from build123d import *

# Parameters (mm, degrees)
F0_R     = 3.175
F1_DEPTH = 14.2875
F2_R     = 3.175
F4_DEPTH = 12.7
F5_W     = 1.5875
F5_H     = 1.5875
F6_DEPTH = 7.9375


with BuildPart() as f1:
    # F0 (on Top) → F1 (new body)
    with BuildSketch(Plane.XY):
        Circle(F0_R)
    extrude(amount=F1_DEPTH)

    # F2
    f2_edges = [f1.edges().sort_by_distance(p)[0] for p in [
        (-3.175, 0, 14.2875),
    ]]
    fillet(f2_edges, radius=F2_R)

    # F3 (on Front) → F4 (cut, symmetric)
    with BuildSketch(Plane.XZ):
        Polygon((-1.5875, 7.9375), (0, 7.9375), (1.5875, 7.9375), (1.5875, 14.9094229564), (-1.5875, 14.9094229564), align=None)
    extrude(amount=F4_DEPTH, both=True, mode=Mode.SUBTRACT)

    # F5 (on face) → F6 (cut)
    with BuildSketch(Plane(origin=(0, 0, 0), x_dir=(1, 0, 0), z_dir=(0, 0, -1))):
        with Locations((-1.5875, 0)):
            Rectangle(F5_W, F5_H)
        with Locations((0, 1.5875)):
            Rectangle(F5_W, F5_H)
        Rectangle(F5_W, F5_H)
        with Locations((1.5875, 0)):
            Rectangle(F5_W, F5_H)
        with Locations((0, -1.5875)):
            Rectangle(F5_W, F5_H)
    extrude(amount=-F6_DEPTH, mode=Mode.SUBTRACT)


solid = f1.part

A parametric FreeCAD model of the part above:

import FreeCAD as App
import Part
import Sketcher

V = App.Vector
Q = App.Units.Quantity


def edges_at(feature, points):
    """Names of the edges that pass closest to the given points."""
    edges = feature.Shape.Edges
    near = lambda p: min(range(len(edges)), key=lambda i: edges[i].distToShape(Part.Vertex(*p))[0])
    return sorted({f"Edge{near(p) + 1}" for p in points})


def add_polygon(sketch, points):
    """Adds a closed chain of lines whose ends are joined by coincident constraints."""
    first, n = sketch.GeometryCount, len(points)
    for a, b in zip(points, points[1:] + points[:1]):
        sketch.addGeometry(Part.LineSegment(App.Vector(*a, 0), App.Vector(*b, 0)), False)
    for i in range(n):
        sketch.addConstraint(Sketcher.Constraint("Coincident", first + i, 2, first + (i + 1) % n, 1))

doc = App.newDocument("Part")
body = doc.addObject("PartDesign::Body", "Body")

# Sketch on XY plane
sketch1 = doc.addObject("Sketcher::SketchObject", "Sketch")
body.addObject(sketch1)
sketch1.AttachmentSupport = (doc.XY_Plane, [""])
sketch1.MapMode = "FlatFace"
sketch1.addGeometry(Part.Circle(V(0, 0, 0), V(0, 0, 1), 3.2), False)
sketch1.addConstraint(Sketcher.Constraint("Coincident", 0, 3, -1, 1))
sketch1.addConstraint(Sketcher.Constraint("Diameter", 0, Q("0.25 in")))
pad1 = doc.addObject("PartDesign::Pad", "Pad")
body.addObject(pad1)
pad1.Profile = sketch1
pad1.Length = Q("0.5625 in")
doc.recompute()

fillet = doc.addObject("PartDesign::Fillet", "Fillet")
body.addObject(fillet)
fillet.Base = (pad1, edges_at(pad1, [(-3.175, 0, 14.287)]))
fillet.Radius = Q("0.125 in")

# Sketch on XZ plane
sketch2 = doc.addObject("Sketcher::SketchObject", "Sketch001")
body.addObject(sketch2)
sketch2.AttachmentSupport = (doc.XZ_Plane, [""])
sketch2.MapMode = "FlatFace"
add_polygon(sketch2, [(-1.6, 7.9), (1.6, 7.9), (1.6, 14.9), (-1.6, 14.9)])  # lines 0-3
sketch2.addConstraint(Sketcher.Constraint("Horizontal", 0))
sketch2.addConstraint(Sketcher.Constraint("Vertical", 1))
sketch2.addConstraint(Sketcher.Constraint("Horizontal", 2))
sketch2.addConstraint(Sketcher.Constraint("Vertical", 3))
sketch2.addConstraint(Sketcher.Constraint("DistanceX", 0, 1, 0, 2, Q("0.125 in")))
sketch2.addConstraint(Sketcher.Constraint("DistanceX", -1, 1, 0, 2, Q("0.0625 in")))
sketch2.addConstraint(Sketcher.Constraint("DistanceY", -1, 1, 0, 2, Q("0.3125 in")))
sketch2.addConstraint(Sketcher.Constraint("DistanceY", 1, 1, 1, 2, 6.971923))
pocket1 = doc.addObject("PartDesign::Pocket", "Pocket")
body.addObject(pocket1)
pocket1.Profile = sketch2
pocket1.Length = Q("1 in")
pocket1.Midplane = True

# Sketch on XY plane
sketch3 = doc.addObject("Sketcher::SketchObject", "Sketch002")
body.addObject(sketch3)
sketch3.AttachmentSupport = (doc.XY_Plane, [""])
sketch3.MapMode = "FlatFace"
add_polygon(sketch3, [(-2.4, -0.8), (-2.4, 0.8), (-0.8, 0.8), (-0.8, 2.4), (0.8, 2.4), (0.8, 0.8), (2.4, 0.8), (2.4, -0.8), (0.8, -0.8), (0.8, -2.4), (-0.8, -2.4), (-0.8, -0.8)])  # lines 0-11
sketch3.addConstraint(Sketcher.Constraint("Vertical", 0))
sketch3.addConstraint(Sketcher.Constraint("Horizontal", 1))
sketch3.addConstraint(Sketcher.Constraint("Vertical", 2))
sketch3.addConstraint(Sketcher.Constraint("Horizontal", 3))
sketch3.addConstraint(Sketcher.Constraint("Vertical", 4))
sketch3.addConstraint(Sketcher.Constraint("Horizontal", 5))
sketch3.addConstraint(Sketcher.Constraint("Vertical", 6))
sketch3.addConstraint(Sketcher.Constraint("Horizontal", 7))
sketch3.addConstraint(Sketcher.Constraint("Vertical", 8))
sketch3.addConstraint(Sketcher.Constraint("Horizontal", 9))
sketch3.addConstraint(Sketcher.Constraint("Vertical", 10))
sketch3.addConstraint(Sketcher.Constraint("Horizontal", 11))
sketch3.addConstraint(Sketcher.Constraint("Symmetric", 0, 2, 6, 2, -1, 1))
sketch3.addConstraint(Sketcher.Constraint("Symmetric", 2, 2, 8, 2, -1, 1))
sketch3.addConstraint(Sketcher.Constraint("Symmetric", 4, 2, 10, 2, -1, 1))
sketch3.addConstraint(Sketcher.Constraint("Symmetric", 1, 2, 4, 2, -2))
sketch3.addConstraint(Sketcher.Constraint("Equal", 1, 3))
sketch3.addConstraint(Sketcher.Constraint("Equal", 11, 0))
sketch3.addConstraint(Sketcher.Constraint("Equal", 0, 2))
sketch3.addConstraint(Sketcher.Constraint("DistanceX", 1, 1, 1, 2, Q("0.0625 in")))
pocket2 = doc.addObject("PartDesign::Pocket", "Pocket001")
body.addObject(pocket2)
pocket2.Profile = sketch3
pocket2.Length = Q("0.3125 in")
pocket2.Reversed = True

doc.recompute()
